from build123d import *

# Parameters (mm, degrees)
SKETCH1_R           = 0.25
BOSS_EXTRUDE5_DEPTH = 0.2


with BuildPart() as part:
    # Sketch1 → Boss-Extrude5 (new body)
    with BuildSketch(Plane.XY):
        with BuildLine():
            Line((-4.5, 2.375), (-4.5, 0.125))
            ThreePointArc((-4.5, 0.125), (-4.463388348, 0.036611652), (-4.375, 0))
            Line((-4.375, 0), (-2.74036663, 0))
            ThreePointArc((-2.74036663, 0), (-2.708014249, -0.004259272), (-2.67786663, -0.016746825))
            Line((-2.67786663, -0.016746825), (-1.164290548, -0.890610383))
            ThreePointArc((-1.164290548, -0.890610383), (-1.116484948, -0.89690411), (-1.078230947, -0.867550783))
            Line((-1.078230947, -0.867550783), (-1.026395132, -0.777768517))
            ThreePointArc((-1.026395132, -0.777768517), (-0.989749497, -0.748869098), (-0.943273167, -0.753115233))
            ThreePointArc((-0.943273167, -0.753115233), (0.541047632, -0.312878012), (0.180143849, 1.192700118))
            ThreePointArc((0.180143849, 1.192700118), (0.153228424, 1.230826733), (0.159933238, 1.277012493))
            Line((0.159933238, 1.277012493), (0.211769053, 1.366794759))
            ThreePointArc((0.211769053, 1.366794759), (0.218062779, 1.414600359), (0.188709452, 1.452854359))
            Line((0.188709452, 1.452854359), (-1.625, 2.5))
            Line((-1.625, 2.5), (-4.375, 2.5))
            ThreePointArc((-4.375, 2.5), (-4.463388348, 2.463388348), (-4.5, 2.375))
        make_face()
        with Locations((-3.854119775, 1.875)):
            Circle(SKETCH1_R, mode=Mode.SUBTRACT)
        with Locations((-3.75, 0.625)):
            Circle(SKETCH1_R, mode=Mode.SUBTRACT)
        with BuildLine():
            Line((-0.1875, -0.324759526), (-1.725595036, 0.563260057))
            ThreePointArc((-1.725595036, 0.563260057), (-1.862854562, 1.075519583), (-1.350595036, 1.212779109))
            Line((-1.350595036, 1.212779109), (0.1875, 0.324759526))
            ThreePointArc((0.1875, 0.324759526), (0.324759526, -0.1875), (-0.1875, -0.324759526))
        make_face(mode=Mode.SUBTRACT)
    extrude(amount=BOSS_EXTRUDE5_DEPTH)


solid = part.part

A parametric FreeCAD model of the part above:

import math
import FreeCAD as App
import Part
import Sketcher
from FreeCAD import Vector
Q = App.Units.Quantity

doc = App.newDocument("Part")
params = doc.addObject("Spreadsheet::Sheet", "Params")
for row, (alias, value) in enumerate([
    ("sketch1_diameter", "0.5 mm"),
    ("sketch1_width", "2.75 mm"),
    ("sketch1_height", "2.25 mm"),
    ("pad1_length", "0.2 mm"),
], start=1):
    params.set(f"A{row}", alias)
    params.set(f"B{row}", "=" + value)
    params.setAlias(f"B{row}", alias)

body = doc.addObject("PartDesign::Body", "Body")

sketch1 = body.newObject("Sketcher::SketchObject", "Sketch")
sketch1.AttachmentSupport = (doc.getObject("XY_Plane"), [""])
sketch1.MapMode = "FlatFace"
sketch1.addGeometry([
    Part.LineSegment(Vector(-4.5, 2.38, 0), Vector(-4.5, 0.12, 0)),
    Part.ArcOfCircle(Part.Circle(Vector(-4.38, 0.12, 0), Vector(0, 0, 1), 0.12), math.radians(180), math.radians(270)),
    Part.LineSegment(Vector(-4.38, 0, 0), Vector(-2.74, 0, 0)),
    Part.ArcOfCircle(Part.Circle(Vector(-2.74, -0.12, 0), Vector(0, 0, 1), 0.12), math.radians(60), math.radians(90)),
    Part.LineSegment(Vector(-2.68, -0.02, 0), Vector(-1.16, -0.89, 0)),
    Part.ArcOfCircle(Part.Circle(Vector(-1.13, -0.84, 0), Vector(0, 0, 1), 0.06), math.radians(-120), math.radians(-30)),
    Part.LineSegment(Vector(-1.08, -0.87, 0), Vector(-1.03, -0.78, 0)),
    Part.ArcOfCircle(Part.Circle(Vector(-0.97, -0.81, 0), Vector(0, 0, 1), 0.06), math.radians(63), math.radians(150)),
    Part.ArcOfCircle(Part.Circle(Vector(-0.43, 0.25, 0), Vector(0, 0, 1), 1.12), math.radians(-117), math.radians(57)),
    Part.ArcOfCircle(Part.Circle(Vector(0.21, 1.25, 0), Vector(0, 0, 1), 0.06), math.radians(150), math.radians(237)),
    Part.LineSegment(Vector(0.16, 1.28, 0), Vector(0.21, 1.37, 0)),
    Part.ArcOfCircle(Part.Circle(Vector(0.16, 1.4, 0), Vector(0, 0, 1), 0.06), math.radians(-30), math.radians(60)),
    Part.LineSegment(Vector(0.19, 1.45, 0), Vector(-1.62, 2.5, 0)),
    Part.LineSegment(Vector(-1.62, 2.5, 0), Vector(-4.38, 2.5, 0)),
    Part.ArcOfCircle(Part.Circle(Vector(-4.38, 2.38, 0), Vector(0, 0, 1), 0.12), math.radians(90), math.radians(180)),
    Part.Circle(Vector(-3.75, 0.62, 0), Vector(0, 0, 1), 0.25),
    Part.ArcOfCircle(Part.Circle(Vector(0, 0, 0), Vector(0, 0, 1), 0.38), math.radians(-120), math.radians(60)),
    Part.LineSegment(Vector(-0.19, -0.32, 0), Vector(-1.73, 0.56, 0)),
    Part.ArcOfCircle(Part.Circle(Vector(-1.54, 0.89, 0), Vector(0, 0, 1), 0.38), math.radians(60), math.radians(240)),
    Part.LineSegment(Vector(-1.35, 1.21, 0), Vector(0.19, 0.32, 0)),
    Part.Circle(Vector(-3.85, 1.88, 0), Vector(0, 0, 1), 0.25),
], False)
sketch1.addConstraint([
    Sketcher.Constraint("Tangent", 0, 2, 1, 1),
    Sketcher.Constraint("Tangent", 1, 2, 2, 1),
    Sketcher.Constraint("Tangent", 2, 2, 3, 2),
    Sketcher.Constraint("Tangent", 3, 1, 4, 1),
    Sketcher.Constraint("Tangent", 4, 2, 5, 1),
    Sketcher.Constraint("Tangent", 5, 2, 6, 1),
    Sketcher.Constraint("Tangent", 6, 2, 7, 2),
    Sketcher.Constraint("Tangent", 7, 1, 8, 1),
    Sketcher.Constraint("Tangent", 8, 2, 9, 2),
    Sketcher.Constraint("Tangent", 9, 1, 10, 1),
    Sketcher.Constraint("Tangent", 10, 2, 11, 1),
    Sketcher.Constraint("Tangent", 11, 2, 12, 1),
    Sketcher.Constraint("Coincident", 12, 2, 13, 1),
    Sketcher.Constraint("Tangent", 13, 2, 14, 1),
    Sketcher.Constraint("Tangent", 14, 2, 0, 1),
    Sketcher.Constraint("Tangent", 16, 1, 17, 1),
    Sketcher.Constraint("Tangent", 17, 2, 18, 2),
    Sketcher.Constraint("Tangent", 18, 1, 19, 1),
    Sketcher.Constraint("Tangent", 19, 2, 16, 2),
    Sketcher.Constraint("Vertical", 0),
    Sketcher.Constraint("Horizontal", 2),
    Sketcher.Constraint("Horizontal", 13),
    Sketcher.Constraint("Coincident", 16, 3, -1, 1),
    Sketcher.Constraint("Equal", 1, 3),
    Sketcher.Constraint("Equal", 5, 7),
    Sketcher.Constraint("Equal", 7, 9),
    Sketcher.Constraint("Equal", 9, 11),
    Sketcher.Constraint("Equal", 3, 14),
    Sketcher.Constraint("Equal", 16, 18),
    Sketcher.Constraint("Equal", 15, 20),
    Sketcher.Constraint("PointOnObject", 1, 2, -1),
    Sketcher.Constraint("Perpendicular", 4, 6),
    Sketcher.Constraint("Parallel", 6, 10),
    Sketcher.Constraint("Perpendicular", 10, 12),
    Sketcher.Constraint("Parallel", 12, 17),
    Sketcher.Constraint("Equal", 6, 10),
    Sketcher.Constraint("Diameter", 15, 0.5),
    Sketcher.Constraint("Angle", 4, Q("-30 deg")),
    Sketcher.Constraint("Radius", 1, 0.125),
    Sketcher.Constraint("Radius", 5, 0.063),
    Sketcher.Constraint("Radius", 8, 1.125),
    Sketcher.Constraint("Radius", 16, 0.375),
    Sketcher.Constraint("DistanceY", 3, 3, 20, 3, 2.0),
    Sketcher.Constraint("DistanceX", 13, 2, 13, 1, 2.75),
    Sketcher.Constraint("DistanceY", 0, 2, 0, 1, 2.25),
    Sketcher.Constraint("DistanceX", 0, 2, -1, 1, 4.5),
    Sketcher.Constraint("DistanceY", 1, 3, 15, 3, 0.5),
    Sketcher.Constraint("DistanceX", 15, 3, -1, 1, 3.75),
    Sketcher.Constraint("DistanceX", 5, 3, 11, 3, 1.29),
    Sketcher.Constraint("DistanceX", 5, 2, 8, 3, 0.645),
    Sketcher.Constraint("DistanceY", -1, 1, 8, 2, 1.1927),
    Sketcher.Constraint("Distance", 6, 0.103672),
    Sketcher.Constraint("Distance", 17, 1.776039),
    Sketcher.Constraint("DistanceX", 20, 3, -1, 1, 3.85412),
])
sketch1.setExpression("Constraints[36]", "Params.sketch1_diameter")
sketch1.setExpression("Constraints[43]", "Params.sketch1_width")
sketch1.setExpression("Constraints[44]", "Params.sketch1_height")
pad1 = body.newObject("PartDesign::Pad", "Pad")
pad1.Profile = sketch1
pad1.setExpression("Length", "Params.pad1_length")

doc.recompute()
